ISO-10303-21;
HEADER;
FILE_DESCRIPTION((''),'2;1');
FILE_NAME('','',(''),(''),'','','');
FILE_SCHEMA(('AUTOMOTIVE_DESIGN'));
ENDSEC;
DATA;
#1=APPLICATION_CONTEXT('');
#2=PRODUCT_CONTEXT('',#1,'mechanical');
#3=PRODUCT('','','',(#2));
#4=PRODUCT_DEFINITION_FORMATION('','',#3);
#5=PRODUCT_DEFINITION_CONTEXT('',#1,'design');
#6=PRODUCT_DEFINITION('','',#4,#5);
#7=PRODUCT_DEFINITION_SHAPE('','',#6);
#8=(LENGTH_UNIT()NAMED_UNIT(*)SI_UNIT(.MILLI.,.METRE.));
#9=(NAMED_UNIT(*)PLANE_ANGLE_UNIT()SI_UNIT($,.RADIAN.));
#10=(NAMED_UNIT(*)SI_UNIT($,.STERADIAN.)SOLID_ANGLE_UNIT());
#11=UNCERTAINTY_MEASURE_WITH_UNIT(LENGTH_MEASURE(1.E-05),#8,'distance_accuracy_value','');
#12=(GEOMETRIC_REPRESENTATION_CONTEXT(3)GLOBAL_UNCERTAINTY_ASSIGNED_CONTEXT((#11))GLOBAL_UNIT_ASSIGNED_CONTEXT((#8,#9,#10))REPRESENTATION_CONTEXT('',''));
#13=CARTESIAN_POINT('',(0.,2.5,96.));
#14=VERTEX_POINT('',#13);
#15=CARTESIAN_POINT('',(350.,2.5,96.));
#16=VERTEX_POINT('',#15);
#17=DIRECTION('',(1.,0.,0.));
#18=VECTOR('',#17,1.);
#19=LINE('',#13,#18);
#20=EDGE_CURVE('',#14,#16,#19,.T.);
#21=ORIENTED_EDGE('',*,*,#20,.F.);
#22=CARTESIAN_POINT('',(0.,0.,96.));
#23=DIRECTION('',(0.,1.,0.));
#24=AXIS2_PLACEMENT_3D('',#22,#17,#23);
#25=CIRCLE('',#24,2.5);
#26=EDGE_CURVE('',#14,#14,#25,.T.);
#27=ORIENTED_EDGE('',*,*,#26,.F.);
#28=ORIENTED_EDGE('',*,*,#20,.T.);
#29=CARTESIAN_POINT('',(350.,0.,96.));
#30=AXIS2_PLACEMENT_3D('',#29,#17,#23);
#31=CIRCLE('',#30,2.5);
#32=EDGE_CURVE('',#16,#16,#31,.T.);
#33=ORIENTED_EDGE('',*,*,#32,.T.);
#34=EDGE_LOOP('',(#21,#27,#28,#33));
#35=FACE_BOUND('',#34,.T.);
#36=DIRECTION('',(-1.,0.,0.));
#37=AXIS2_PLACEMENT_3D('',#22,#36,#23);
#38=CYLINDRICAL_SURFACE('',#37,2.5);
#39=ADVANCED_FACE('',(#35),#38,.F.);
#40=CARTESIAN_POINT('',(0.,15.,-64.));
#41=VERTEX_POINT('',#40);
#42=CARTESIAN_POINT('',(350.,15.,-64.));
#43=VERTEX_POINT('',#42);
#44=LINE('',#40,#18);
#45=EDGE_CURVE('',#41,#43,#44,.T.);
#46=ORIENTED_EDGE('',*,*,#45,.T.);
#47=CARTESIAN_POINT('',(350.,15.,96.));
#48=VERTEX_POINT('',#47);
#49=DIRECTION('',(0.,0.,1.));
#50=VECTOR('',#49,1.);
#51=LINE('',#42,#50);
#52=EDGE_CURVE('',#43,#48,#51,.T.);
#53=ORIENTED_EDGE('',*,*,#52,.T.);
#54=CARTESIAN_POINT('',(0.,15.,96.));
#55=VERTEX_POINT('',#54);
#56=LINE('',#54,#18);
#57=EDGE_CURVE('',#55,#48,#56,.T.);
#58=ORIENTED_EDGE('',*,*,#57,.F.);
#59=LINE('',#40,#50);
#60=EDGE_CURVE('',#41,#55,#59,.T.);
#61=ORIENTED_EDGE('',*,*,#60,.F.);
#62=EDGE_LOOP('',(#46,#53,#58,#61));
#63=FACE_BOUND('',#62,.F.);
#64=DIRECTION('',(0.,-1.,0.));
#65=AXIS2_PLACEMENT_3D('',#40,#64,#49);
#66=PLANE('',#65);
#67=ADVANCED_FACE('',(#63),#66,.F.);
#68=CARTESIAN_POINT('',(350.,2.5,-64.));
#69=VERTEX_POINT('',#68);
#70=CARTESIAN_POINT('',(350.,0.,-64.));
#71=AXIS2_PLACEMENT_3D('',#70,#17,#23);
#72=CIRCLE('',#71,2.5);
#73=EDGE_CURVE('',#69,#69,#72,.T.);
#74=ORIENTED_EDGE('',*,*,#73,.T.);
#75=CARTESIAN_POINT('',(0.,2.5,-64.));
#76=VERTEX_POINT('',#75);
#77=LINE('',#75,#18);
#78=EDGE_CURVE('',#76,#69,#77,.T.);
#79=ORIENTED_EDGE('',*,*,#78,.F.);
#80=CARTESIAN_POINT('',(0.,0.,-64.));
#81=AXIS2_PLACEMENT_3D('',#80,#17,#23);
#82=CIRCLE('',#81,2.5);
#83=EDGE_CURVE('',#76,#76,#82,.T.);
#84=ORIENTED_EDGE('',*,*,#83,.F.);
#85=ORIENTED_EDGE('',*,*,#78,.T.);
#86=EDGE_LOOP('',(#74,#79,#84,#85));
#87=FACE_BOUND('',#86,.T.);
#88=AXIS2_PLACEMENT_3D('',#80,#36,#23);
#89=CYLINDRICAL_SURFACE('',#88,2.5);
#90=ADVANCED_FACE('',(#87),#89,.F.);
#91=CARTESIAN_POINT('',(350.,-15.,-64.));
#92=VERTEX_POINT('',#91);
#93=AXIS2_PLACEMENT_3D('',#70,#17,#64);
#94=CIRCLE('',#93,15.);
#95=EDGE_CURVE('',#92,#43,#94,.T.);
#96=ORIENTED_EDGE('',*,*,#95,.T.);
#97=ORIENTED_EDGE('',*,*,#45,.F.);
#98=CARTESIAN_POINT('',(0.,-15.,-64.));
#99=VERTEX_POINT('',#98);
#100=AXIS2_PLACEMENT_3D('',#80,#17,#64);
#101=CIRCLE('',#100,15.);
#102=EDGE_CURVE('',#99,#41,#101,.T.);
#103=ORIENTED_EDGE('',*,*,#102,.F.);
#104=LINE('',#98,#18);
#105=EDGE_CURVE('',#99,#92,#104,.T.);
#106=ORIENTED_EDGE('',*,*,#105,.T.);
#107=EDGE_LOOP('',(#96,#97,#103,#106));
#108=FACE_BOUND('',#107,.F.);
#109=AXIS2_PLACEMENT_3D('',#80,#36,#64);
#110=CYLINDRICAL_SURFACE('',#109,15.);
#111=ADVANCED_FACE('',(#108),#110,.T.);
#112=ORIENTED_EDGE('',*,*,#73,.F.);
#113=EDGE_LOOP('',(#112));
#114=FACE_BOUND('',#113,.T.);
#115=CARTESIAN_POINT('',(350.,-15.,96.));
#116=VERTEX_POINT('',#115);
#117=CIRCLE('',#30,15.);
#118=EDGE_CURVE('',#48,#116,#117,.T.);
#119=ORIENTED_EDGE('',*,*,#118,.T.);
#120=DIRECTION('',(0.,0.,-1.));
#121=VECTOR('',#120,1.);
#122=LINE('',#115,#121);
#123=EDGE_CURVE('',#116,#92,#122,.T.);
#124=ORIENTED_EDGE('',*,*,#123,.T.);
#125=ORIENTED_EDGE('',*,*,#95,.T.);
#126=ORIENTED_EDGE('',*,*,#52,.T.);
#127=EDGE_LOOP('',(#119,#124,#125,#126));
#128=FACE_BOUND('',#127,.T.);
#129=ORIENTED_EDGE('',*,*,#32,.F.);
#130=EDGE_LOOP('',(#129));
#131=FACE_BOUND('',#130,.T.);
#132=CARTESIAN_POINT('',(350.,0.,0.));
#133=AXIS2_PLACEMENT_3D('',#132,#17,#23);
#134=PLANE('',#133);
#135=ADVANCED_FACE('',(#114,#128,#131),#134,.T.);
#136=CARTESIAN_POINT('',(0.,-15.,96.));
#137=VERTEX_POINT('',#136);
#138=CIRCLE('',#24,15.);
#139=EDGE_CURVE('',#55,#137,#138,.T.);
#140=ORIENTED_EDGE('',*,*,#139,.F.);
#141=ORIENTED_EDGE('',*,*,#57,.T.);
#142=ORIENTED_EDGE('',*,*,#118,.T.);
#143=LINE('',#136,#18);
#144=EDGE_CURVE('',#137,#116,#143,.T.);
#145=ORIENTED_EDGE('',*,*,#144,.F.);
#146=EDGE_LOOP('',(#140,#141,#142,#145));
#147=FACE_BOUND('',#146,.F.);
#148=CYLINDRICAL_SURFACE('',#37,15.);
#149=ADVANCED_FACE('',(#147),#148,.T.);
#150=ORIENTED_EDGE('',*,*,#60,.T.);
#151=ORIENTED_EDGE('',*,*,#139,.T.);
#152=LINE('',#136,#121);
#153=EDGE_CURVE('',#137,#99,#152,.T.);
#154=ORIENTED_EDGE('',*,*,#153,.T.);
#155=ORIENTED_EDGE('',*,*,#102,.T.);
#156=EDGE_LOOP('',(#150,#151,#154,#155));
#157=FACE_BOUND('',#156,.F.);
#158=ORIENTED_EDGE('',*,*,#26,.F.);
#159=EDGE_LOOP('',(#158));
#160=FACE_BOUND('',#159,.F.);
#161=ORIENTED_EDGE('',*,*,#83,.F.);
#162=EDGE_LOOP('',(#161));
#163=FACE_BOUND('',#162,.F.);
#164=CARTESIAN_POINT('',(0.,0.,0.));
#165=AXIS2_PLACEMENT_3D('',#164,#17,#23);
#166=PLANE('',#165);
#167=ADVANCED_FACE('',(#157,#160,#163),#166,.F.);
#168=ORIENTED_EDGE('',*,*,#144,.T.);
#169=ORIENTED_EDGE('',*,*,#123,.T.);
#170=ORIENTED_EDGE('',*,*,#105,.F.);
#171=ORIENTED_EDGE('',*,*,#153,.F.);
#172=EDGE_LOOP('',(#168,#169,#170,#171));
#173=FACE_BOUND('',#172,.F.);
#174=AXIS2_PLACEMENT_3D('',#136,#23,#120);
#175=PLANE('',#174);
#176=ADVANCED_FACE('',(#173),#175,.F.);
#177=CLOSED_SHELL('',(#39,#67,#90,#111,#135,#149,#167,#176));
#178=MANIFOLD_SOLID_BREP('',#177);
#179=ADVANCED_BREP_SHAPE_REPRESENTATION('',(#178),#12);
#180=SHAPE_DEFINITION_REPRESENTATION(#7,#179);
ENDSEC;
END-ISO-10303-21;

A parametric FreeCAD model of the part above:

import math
import FreeCAD as App
import Part
import Sketcher
Q = App.Units.Quantity

doc = App.newDocument("Part")
body = doc.addObject("PartDesign::Body", "Body")

# Sketch on YZ plane
sketch1 = body.newObject("Sketcher::SketchObject", "Sketch")
sketch1.AttachmentSupport = (doc.getObject("YZ_Plane"), [""])
sketch1.MapMode = "FlatFace"
sketch1.addGeometry(Part.ArcOfCircle(Part.Circle(App.Vector(0, 96, 0), App.Vector(0, 0, 1), 15), math.radians(0), math.radians(180)), False)
sketch1.addGeometry(Part.LineSegment(App.Vector(-15, 96, 0), App.Vector(-15, -64, 0)), False)
sketch1.addGeometry(Part.ArcOfCircle(Part.Circle(App.Vector(0, -64, 0), App.Vector(0, 0, 1), 15), math.radians(180), math.radians(360)), False)
sketch1.addGeometry(Part.LineSegment(App.Vector(15, -64, 0), App.Vector(15, 96, 0)), False)
sketch1.addGeometry(Part.Circle(App.Vector(0, -64, 0), App.Vector(0, 0, 1), 2.5), False)
sketch1.addGeometry(Part.Circle(App.Vector(0, 96, 0), App.Vector(0, 0, 1), 2.5), False)
sketch1.addConstraint(Sketcher.Constraint("Tangent", 0, 2, 1, 1))
sketch1.addConstraint(Sketcher.Constraint("Tangent", 1, 2, 2, 1))
sketch1.addConstraint(Sketcher.Constraint("Tangent", 2, 2, 3, 1))
sketch1.addConstraint(Sketcher.Constraint("Tangent", 3, 2, 0, 1))
sketch1.addConstraint(Sketcher.Constraint("Vertical", 1))
sketch1.addConstraint(Sketcher.Constraint("Vertical", 3))
sketch1.addConstraint(Sketcher.Constraint("Coincident", 4, 3, 2, 3))
sketch1.addConstraint(Sketcher.Constraint("Coincident", 5, 3, 0, 3))
sketch1.addConstraint(Sketcher.Constraint("Equal", 4, 5))
sketch1.addConstraint(Sketcher.Constraint("PointOnObject", 0, 3, -2))
sketch1.addConstraint(Sketcher.Constraint("Radius", 0, Q("15 mm")))
sketch1.addConstraint(Sketcher.Constraint("DistanceY", 1, 2, 1, 1, Q("160 mm")))
sketch1.addConstraint(Sketcher.Constraint("Diameter", 4, Q("5 mm")))
sketch1.addConstraint(Sketcher.Constraint("DistanceY", -1, 1, 0, 3, Q("96 mm")))
pad1 = body.newObject("PartDesign::Pad", "Pad")
pad1.Profile = sketch1
pad1.Length = 350

doc.recompute()
